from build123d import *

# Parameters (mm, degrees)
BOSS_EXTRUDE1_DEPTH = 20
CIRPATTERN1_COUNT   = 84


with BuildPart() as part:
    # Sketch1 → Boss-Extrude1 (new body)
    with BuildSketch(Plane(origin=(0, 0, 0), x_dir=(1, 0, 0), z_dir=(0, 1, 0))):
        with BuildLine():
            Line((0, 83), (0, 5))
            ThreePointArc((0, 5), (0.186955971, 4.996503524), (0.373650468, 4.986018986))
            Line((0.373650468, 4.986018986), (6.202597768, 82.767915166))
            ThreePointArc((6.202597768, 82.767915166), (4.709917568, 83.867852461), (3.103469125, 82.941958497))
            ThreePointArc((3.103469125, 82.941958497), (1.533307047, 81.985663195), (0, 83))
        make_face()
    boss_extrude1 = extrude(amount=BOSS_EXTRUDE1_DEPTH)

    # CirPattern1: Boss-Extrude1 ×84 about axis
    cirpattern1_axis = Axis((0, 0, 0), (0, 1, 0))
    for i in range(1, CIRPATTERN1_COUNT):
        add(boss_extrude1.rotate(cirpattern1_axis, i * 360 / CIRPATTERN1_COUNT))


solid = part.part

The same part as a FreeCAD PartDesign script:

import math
import FreeCAD as App
import Part
import Sketcher

doc = App.newDocument("Part")
params = doc.addObject("Spreadsheet::Sheet", "Params")
for row, (alias, value) in enumerate([
    ("sketch1_radius", "5 mm"),
    ("sketch1_height", "78 mm"),
    ("sketch1_length", "78 mm"),
    ("pad1_length", "20 mm"),
], start=1):
    params.set(f"A{row}", alias)
    params.set(f"B{row}", "=" + value)
    params.setAlias(f"B{row}", alias)

body = doc.addObject("PartDesign::Body", "Body")

# Sketch on XZ plane
sketch1 = doc.addObject("Sketcher::SketchObject", "Sketch")
body.addObject(sketch1)
sketch1.AttachmentSupport = (doc.XZ_Plane, [""])
sketch1.MapMode = "FlatFace"
sketch1.addGeometry(Part.LineSegment(App.Vector(0, -83, 0), App.Vector(0, -5, 0)), False)
sketch1.addGeometry(Part.ArcOfCircle(Part.Circle(App.Vector(0, 0, 0), App.Vector(0, 0, 1), 5), math.radians(-90), math.radians(-85.714286)), False)
sketch1.addGeometry(Part.LineSegment(App.Vector(0.37365, -4.986019, 0), App.Vector(6.202598, -82.767915, 0)), False)
sketch1.addGeometry(Part.ArcOfCircle(Part.Circle(App.Vector(4.614912, -82.176128, 0), App.Vector(0, 0, 1), 1.69439), math.radians(-153.129214), math.radians(-20.442215)), False)
sketch1.addGeometry(Part.ArcOfCircle(Part.Circle(App.Vector(1.565373, -83.700203, 0), App.Vector(0, 0, 1), 1.71484), math.radians(26.242197), math.radians(155.900661)), False)
sketch1.addConstraint(Sketcher.Constraint("Coincident", 0, 2, 1, 1))
sketch1.addConstraint(Sketcher.Constraint("Coincident", 1, 2, 2, 1))
sketch1.addConstraint(Sketcher.Constraint("Coincident", 2, 2, 3, 2))
sketch1.addConstraint(Sketcher.Constraint("Coincident", 3, 1, 4, 1))
sketch1.addConstraint(Sketcher.Constraint("Coincident", 4, 2, 0, 1))
sketch1.addConstraint(Sketcher.Constraint("Vertical", 0))
sketch1.addConstraint(Sketcher.Constraint("Coincident", 1, 3, -1, 1))
sketch1.addConstraint(Sketcher.Constraint("PointOnObject", 0, 2, -2))
sketch1.addConstraint(Sketcher.Constraint("Radius", 1, 5.0))
sketch1.addConstraint(Sketcher.Constraint("DistanceY", 0, 1, 0, 2, 78.0))
sketch1.addConstraint(Sketcher.Constraint("Distance", 2, 78.0))
sketch1.addConstraint(Sketcher.Constraint("Radius", 3, 1.69439))
sketch1.addConstraint(Sketcher.Constraint("Radius", 4, 1.71484))
sketch1.addConstraint(Sketcher.Constraint("DistanceY", 3, 3, -1, 1, 82.176128))
sketch1.addConstraint(Sketcher.Constraint("DistanceX", -1, 1, 1, 2, 0.37365))
sketch1.addConstraint(Sketcher.Constraint("DistanceX", -1, 1, 3, 1, 3.103469))
sketch1.addConstraint(Sketcher.Constraint("DistanceY", 3, 1, -1, 1, 82.941958))
sketch1.setExpression("Constraints[8]", "Params.sketch1_radius")
sketch1.setExpression("Constraints[9]", "Params.sketch1_height")
sketch1.setExpression("Constraints[10]", "Params.sketch1_length")
pad1 = doc.addObject("PartDesign::Pad", "Pad")
body.addObject(pad1)
pad1.Profile = sketch1
pad1.setExpression("Length", "Params.pad1_length")
pad1.Reversed = True
doc.recompute()

polarpattern = doc.addObject("PartDesign::PolarPattern", "PolarPattern")
body.addObject(polarpattern)
polarpattern.Originals = [pad1]
polarpattern.Axis = (doc.Y_Axis, [""])
polarpattern.Angle = 360
polarpattern.Occurrences = 84
body.Tip = polarpattern

doc.recompute()
